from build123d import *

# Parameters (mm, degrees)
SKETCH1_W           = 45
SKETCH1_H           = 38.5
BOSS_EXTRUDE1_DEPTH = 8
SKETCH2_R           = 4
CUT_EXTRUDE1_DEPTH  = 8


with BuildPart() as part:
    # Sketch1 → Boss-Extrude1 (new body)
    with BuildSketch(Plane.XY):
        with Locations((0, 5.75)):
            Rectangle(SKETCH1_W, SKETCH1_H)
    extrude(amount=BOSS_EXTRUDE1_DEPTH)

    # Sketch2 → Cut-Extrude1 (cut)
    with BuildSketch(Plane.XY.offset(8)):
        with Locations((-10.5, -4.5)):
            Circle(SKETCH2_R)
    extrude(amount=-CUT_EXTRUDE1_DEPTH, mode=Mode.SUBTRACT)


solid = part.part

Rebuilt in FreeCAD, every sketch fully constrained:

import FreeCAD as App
import Part
import Sketcher
Q = App.Units.Quantity


def add_polygon(sketch, points):
    """Adds a closed chain of lines whose ends are joined by coincident constraints."""
    first, n = sketch.GeometryCount, len(points)
    for a, b in zip(points, points[1:] + points[:1]):
        sketch.addGeometry(Part.LineSegment(App.Vector(*a, 0), App.Vector(*b, 0)), False)
    for i in range(n):
        sketch.addConstraint(Sketcher.Constraint("Coincident", first + i, 2, first + (i + 1) % n, 1))

doc = App.newDocument("Part")
params = doc.addObject("Spreadsheet::Sheet", "Params")
for row, (alias, value) in enumerate([
    ("sketch1_width", "45 mm"),
    ("sketch1_height", "38.5 mm"),
    ("pad1_length", "8 mm"),
    ("sketch2_diameter", "8 mm"),
    ("pocket1_length", "8 mm"),
], start=1):
    params.set(f"A{row}", alias)
    params.set(f"B{row}", "=" + value)
    params.setAlias(f"B{row}", alias)

body = doc.addObject("PartDesign::Body", "Body")

sketch1 = body.newObject("Sketcher::SketchObject", "Sketch")
sketch1.AttachmentSupport = (doc.getObject("XY_Plane"), [""])
sketch1.MapMode = "FlatFace"
add_polygon(sketch1, [(-22, 25), (-22, -14), (22, -14), (22, 25)])
sketch1.addConstraint([
    Sketcher.Constraint("Vertical", 0),
    Sketcher.Constraint("Horizontal", 1),
    Sketcher.Constraint("Vertical", 2),
    Sketcher.Constraint("Horizontal", 3),
    Sketcher.Constraint("DistanceX", 1, 1, 1, 2, Q("45 mm")),
    Sketcher.Constraint("DistanceY", 0, 2, 0, 1, Q("38.5 mm")),
    Sketcher.Constraint("DistanceY", -1, 1, 2, 2, Q("25 mm")),
    Sketcher.Constraint("DistanceX", 0, 2, -1, 1, Q("22.5 mm")),
])
sketch1.setExpression("Constraints[8]", "Params.sketch1_width")
sketch1.setExpression("Constraints[9]", "Params.sketch1_height")
pad1 = body.newObject("PartDesign::Pad", "Pad")
pad1.Profile = sketch1
pad1.setExpression("Length", "Params.pad1_length")

sketch2 = body.newObject("Sketcher::SketchObject", "Sketch001")
sketch2.AttachmentSupport = (doc.getObject("XY_Plane"), [""])
sketch2.MapMode = "FlatFace"
sketch2.AttachmentOffset = App.Placement(App.Vector(0, 0, 8), App.Rotation())
sketch2.addGeometry(Part.Circle(App.Vector(-10.5, -4.5, 0), App.Vector(0, 0, 1), 4), False)
sketch2.addConstraint([
    Sketcher.Constraint("Diameter", 0, Q("8 mm")),
    Sketcher.Constraint("DistanceX", 0, 3, -1, 1, Q("10.5 mm")),
    Sketcher.Constraint("DistanceY", 0, 3, -1, 1, Q("4.5 mm")),
])
sketch2.setExpression("Constraints[0]", "Params.sketch2_diameter")
pocket1 = body.newObject("PartDesign::Pocket", "Pocket")
pocket1.Profile = sketch2
pocket1.setExpression("Length", "Params.pocket1_length")

doc.recompute()
